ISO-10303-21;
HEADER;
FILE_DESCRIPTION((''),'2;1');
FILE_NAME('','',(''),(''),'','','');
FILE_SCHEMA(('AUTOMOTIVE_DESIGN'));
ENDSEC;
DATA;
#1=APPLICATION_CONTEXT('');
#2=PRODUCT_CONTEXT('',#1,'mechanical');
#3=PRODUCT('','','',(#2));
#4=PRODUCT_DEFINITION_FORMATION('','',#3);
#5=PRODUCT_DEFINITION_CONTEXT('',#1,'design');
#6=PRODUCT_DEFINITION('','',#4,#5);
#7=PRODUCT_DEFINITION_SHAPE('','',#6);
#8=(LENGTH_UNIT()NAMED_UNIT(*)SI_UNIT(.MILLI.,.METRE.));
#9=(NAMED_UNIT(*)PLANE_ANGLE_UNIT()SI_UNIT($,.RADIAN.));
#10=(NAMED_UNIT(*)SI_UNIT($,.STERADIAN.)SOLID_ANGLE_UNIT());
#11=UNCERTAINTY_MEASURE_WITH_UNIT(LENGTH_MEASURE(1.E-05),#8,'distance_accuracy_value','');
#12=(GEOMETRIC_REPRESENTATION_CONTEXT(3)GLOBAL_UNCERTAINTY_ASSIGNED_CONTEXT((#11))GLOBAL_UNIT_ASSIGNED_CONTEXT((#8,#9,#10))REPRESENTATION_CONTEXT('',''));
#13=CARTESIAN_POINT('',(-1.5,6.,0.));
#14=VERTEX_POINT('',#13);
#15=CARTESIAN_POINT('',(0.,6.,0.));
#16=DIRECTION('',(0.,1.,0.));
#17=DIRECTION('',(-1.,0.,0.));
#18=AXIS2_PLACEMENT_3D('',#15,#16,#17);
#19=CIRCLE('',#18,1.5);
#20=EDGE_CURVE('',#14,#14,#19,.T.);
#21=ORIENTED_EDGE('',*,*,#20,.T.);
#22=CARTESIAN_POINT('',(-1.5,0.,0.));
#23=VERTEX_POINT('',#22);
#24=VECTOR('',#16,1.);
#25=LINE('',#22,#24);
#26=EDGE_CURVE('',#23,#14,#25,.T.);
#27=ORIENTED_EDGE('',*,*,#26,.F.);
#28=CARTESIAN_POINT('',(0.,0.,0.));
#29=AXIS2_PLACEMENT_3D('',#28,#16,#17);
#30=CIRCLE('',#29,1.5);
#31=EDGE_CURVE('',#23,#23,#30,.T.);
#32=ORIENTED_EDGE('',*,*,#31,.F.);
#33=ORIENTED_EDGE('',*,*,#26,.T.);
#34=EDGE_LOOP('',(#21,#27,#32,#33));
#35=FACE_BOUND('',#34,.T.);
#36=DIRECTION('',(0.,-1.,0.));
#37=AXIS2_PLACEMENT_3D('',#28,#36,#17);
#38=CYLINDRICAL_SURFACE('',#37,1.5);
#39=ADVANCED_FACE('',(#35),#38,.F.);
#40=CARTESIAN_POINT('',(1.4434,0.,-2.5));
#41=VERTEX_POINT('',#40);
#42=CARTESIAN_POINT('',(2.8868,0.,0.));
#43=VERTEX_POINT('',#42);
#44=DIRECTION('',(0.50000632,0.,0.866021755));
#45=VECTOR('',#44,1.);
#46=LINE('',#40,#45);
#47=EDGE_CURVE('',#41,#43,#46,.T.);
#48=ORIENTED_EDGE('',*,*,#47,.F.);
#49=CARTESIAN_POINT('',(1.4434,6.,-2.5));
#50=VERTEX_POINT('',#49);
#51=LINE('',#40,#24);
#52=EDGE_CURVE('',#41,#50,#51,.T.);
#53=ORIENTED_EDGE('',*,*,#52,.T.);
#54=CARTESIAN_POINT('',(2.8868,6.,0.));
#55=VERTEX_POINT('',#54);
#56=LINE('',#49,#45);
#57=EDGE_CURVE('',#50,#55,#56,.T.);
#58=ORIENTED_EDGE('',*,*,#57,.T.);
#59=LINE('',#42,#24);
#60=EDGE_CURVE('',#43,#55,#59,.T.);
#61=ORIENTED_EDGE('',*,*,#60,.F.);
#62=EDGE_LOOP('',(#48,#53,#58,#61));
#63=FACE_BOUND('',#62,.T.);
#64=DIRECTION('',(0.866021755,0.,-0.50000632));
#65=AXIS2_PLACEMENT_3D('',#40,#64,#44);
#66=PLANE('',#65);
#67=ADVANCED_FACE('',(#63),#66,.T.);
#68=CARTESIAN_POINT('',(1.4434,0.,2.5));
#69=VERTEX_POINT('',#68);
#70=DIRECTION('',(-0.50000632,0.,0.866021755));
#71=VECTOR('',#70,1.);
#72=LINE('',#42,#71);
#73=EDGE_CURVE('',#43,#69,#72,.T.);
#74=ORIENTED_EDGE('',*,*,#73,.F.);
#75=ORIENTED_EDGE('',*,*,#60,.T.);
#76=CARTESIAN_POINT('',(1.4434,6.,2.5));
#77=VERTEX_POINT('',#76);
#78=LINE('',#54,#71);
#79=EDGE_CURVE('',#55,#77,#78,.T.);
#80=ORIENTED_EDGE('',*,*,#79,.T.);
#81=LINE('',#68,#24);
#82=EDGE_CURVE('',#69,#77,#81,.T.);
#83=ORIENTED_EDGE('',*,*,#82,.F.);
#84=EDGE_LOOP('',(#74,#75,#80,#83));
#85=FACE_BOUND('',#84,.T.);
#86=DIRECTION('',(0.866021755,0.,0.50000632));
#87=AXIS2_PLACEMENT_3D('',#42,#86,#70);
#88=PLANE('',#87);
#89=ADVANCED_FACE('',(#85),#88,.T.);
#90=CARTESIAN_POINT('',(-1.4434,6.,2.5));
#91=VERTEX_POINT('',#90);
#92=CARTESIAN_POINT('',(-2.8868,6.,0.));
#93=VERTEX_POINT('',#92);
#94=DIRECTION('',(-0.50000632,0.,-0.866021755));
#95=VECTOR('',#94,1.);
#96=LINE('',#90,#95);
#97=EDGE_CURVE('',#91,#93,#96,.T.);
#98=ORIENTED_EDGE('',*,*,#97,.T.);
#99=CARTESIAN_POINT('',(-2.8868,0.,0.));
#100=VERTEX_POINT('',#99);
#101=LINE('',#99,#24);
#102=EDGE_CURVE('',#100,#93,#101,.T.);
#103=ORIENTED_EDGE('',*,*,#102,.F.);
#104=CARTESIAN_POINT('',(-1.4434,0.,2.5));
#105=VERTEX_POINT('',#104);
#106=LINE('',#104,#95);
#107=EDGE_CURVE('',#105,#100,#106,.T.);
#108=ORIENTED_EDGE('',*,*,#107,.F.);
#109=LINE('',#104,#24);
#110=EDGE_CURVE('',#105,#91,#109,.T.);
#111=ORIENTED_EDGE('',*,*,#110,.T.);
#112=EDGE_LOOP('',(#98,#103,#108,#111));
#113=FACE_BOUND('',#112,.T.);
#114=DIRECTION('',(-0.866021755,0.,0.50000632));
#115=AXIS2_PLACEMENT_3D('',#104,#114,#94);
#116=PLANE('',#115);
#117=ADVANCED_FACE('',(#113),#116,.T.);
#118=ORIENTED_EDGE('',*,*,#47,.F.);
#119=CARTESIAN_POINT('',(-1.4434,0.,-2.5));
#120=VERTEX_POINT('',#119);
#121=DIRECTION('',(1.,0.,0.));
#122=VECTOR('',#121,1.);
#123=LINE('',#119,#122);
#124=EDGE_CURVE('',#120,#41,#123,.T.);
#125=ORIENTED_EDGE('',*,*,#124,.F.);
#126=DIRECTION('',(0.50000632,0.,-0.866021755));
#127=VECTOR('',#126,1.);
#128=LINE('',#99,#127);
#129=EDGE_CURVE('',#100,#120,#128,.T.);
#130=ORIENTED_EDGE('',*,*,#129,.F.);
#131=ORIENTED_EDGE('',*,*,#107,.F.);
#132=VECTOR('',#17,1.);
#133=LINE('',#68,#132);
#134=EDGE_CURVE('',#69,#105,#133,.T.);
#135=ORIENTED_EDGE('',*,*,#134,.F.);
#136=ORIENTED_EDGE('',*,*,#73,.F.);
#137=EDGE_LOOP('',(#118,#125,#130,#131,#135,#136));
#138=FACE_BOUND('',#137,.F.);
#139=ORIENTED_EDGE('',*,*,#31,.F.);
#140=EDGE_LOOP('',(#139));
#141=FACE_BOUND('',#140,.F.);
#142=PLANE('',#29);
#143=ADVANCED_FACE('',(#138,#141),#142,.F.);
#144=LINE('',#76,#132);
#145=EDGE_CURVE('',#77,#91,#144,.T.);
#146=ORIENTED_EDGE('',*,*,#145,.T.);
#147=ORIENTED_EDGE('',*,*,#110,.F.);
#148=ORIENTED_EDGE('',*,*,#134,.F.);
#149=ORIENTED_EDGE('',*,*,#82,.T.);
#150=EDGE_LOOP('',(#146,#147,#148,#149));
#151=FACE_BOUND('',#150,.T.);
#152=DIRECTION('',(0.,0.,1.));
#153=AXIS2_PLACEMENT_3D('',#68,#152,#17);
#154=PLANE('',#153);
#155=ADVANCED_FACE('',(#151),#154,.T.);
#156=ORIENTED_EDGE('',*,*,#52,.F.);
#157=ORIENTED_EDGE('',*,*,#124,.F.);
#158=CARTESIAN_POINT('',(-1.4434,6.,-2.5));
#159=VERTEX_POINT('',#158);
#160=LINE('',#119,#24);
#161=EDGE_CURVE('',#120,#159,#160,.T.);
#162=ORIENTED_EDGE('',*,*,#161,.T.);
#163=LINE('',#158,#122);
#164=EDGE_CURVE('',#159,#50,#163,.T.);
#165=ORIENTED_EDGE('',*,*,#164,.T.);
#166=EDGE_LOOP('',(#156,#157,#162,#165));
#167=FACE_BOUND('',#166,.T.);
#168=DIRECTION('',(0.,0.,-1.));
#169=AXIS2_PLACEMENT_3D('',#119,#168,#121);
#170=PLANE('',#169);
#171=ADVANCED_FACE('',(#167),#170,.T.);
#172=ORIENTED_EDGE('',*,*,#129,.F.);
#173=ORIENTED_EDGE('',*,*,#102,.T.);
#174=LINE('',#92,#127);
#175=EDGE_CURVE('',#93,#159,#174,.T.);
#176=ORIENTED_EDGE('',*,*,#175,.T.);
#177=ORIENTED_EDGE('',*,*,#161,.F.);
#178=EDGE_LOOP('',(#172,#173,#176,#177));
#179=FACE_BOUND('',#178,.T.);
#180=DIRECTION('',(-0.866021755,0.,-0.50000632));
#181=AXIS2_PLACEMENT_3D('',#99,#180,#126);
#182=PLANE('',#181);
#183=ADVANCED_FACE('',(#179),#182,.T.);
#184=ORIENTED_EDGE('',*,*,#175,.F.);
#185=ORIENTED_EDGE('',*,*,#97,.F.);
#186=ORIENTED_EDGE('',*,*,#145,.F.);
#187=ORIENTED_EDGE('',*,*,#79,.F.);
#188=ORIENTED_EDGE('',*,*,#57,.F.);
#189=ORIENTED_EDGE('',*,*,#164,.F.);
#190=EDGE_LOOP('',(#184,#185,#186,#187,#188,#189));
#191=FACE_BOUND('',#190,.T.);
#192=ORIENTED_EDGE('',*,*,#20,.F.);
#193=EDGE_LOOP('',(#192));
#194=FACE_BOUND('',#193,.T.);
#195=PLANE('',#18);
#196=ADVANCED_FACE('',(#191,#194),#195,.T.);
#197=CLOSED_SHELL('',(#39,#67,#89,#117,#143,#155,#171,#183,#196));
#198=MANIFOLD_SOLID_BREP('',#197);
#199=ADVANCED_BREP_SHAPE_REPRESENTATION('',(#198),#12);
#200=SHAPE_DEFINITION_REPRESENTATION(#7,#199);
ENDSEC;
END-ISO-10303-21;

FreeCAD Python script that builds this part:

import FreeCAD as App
import Part
import Sketcher
from FreeCAD import Vector
Q = App.Units.Quantity

doc = App.newDocument("Part")
body = doc.addObject("PartDesign::Body", "Body")

sketch1 = doc.addObject("Sketcher::SketchObject", "Sketch")
body.addObject(sketch1)
sketch1.AttachmentSupport = (doc.XZ_Plane, [""])
sketch1.MapMode = "FlatFace"
sketch1.addGeometry(Part.LineSegment(Vector(2.9, 0, 0), Vector(1.4, -2.5, 0)), False)
sketch1.addGeometry(Part.LineSegment(Vector(1.4, -2.5, 0), Vector(-1.4, -2.5, 0)), False)
sketch1.addGeometry(Part.LineSegment(Vector(-1.4, -2.5, 0), Vector(-2.9, 0, 0)), False)
sketch1.addGeometry(Part.LineSegment(Vector(-2.9, 0, 0), Vector(-1.4, 2.5, 0)), False)
sketch1.addGeometry(Part.LineSegment(Vector(-1.4, 2.5, 0), Vector(1.4, 2.5, 0)), False)
sketch1.addGeometry(Part.LineSegment(Vector(1.4, 2.5, 0), Vector(2.9, 0, 0)), False)
sketch1.addGeometry(Part.Circle(Vector(0, 0, 0), Vector(0, 0, 1), 1.5), False)
sketch1.addConstraint(Sketcher.Constraint("Coincident", 0, 2, 1, 1))
sketch1.addConstraint(Sketcher.Constraint("Coincident", 1, 2, 2, 1))
sketch1.addConstraint(Sketcher.Constraint("Coincident", 2, 2, 3, 1))
sketch1.addConstraint(Sketcher.Constraint("Coincident", 3, 2, 4, 1))
sketch1.addConstraint(Sketcher.Constraint("Coincident", 4, 2, 5, 1))
sketch1.addConstraint(Sketcher.Constraint("Coincident", 5, 2, 0, 1))
sketch1.addConstraint(Sketcher.Constraint("Horizontal", 1))
sketch1.addConstraint(Sketcher.Constraint("Horizontal", 4))
sketch1.addConstraint(Sketcher.Constraint("Coincident", 6, 3, -1, 1))
sketch1.addConstraint(Sketcher.Constraint("Symmetric", 0, 2, 3, 2, -1, 1))
sketch1.addConstraint(Sketcher.Constraint("Symmetric", 2, 2, 5, 2, -1, 1))
sketch1.addConstraint(Sketcher.Constraint("PointOnObject", 2, 2, -1))
sketch1.addConstraint(Sketcher.Constraint("Parallel", 2, 5))
sketch1.addConstraint(Sketcher.Constraint("Vertical", 1, 2, 3, 2))
sketch1.addConstraint(Sketcher.Constraint("Diameter", 6, Q("3 mm")))
sketch1.addConstraint(Sketcher.Constraint("DistanceY", 1, 2, 3, 2, Q("5 mm")))
sketch1.addConstraint(Sketcher.Constraint("Angle", 0, Q("-120.0004 deg")))
sketch1.addConstraint(Sketcher.Constraint("DistanceX", 1, 2, 1, 1, Q("2.8868 mm")))
pad1 = doc.addObject("PartDesign::Pad", "Pad")
body.addObject(pad1)
pad1.Profile = sketch1
pad1.Length = 6
pad1.Reversed = True

doc.recompute()
